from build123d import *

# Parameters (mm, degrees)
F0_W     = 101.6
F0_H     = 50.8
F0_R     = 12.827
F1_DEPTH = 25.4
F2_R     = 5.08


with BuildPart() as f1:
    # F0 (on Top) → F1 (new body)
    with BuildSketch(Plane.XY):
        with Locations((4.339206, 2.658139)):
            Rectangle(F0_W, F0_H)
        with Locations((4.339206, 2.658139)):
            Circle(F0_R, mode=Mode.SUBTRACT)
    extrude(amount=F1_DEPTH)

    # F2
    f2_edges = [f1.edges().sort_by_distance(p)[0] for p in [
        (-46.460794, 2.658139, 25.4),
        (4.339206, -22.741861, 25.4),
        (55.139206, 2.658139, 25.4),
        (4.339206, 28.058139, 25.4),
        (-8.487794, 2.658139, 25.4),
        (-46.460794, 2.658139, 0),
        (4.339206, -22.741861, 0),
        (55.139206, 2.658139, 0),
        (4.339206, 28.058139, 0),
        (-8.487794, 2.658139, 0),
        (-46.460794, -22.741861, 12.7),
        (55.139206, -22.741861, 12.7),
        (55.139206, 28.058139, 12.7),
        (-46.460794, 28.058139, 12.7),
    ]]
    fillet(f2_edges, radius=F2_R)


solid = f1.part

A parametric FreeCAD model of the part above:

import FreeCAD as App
import Part
import Sketcher
from FreeCAD import Vector
Q = App.Units.Quantity

doc = App.newDocument("Part")
body = doc.addObject("PartDesign::Body", "Body")

# Sketch on XY plane
sketch1 = doc.addObject("Sketcher::SketchObject", "Sketch")
body.addObject(sketch1)
sketch1.AttachmentSupport = (doc.XY_Plane, [""])
sketch1.MapMode = "FlatFace"
sketch1.addGeometry(Part.LineSegment(Vector(-46, 28, 0), Vector(-46, -23, 0)), False)
sketch1.addGeometry(Part.LineSegment(Vector(-46, -23, 0), Vector(55, -23, 0)), False)
sketch1.addGeometry(Part.LineSegment(Vector(55, -23, 0), Vector(55, 28, 0)), False)
sketch1.addGeometry(Part.LineSegment(Vector(55, 28, 0), Vector(-46, 28, 0)), False)
sketch1.addGeometry(Part.Circle(Vector(4, 3, 0), Vector(0, 0, 1), 13), False)
sketch1.addConstraint(Sketcher.Constraint("Coincident", 0, 2, 1, 1))
sketch1.addConstraint(Sketcher.Constraint("Coincident", 1, 2, 2, 1))
sketch1.addConstraint(Sketcher.Constraint("Coincident", 2, 2, 3, 1))
sketch1.addConstraint(Sketcher.Constraint("Coincident", 3, 2, 0, 1))
sketch1.addConstraint(Sketcher.Constraint("Vertical", 0))
sketch1.addConstraint(Sketcher.Constraint("Horizontal", 1))
sketch1.addConstraint(Sketcher.Constraint("Vertical", 2))
sketch1.addConstraint(Sketcher.Constraint("Horizontal", 3))
sketch1.addConstraint(Sketcher.Constraint("Diameter", 4, Q("1.01 in")))
sketch1.addConstraint(Sketcher.Constraint("DistanceX", 1, 1, 1, 2, Q("4 in")))
sketch1.addConstraint(Sketcher.Constraint("DistanceY", 0, 2, 0, 1, Q("2 in")))
sketch1.addConstraint(Sketcher.Constraint("DistanceX", 0, 2, 4, 3, Q("2 in")))
sketch1.addConstraint(Sketcher.Constraint("DistanceY", 0, 2, 4, 3, Q("1 in")))
sketch1.addConstraint(Sketcher.Constraint("DistanceY", -1, 1, 4, 3, 2.658139))
sketch1.addConstraint(Sketcher.Constraint("DistanceX", -1, 1, 4, 3, 4.339206))
pad1 = doc.addObject("PartDesign::Pad", "Pad")
body.addObject(pad1)
pad1.Profile = sketch1
pad1.Length = Q("1 in")
doc.recompute()

fillet = doc.addObject("PartDesign::Fillet", "Fillet")
body.addObject(fillet)
fillet.Base = (pad1, ["Edge1"])
fillet.UseAllEdges = True
fillet.Radius = Q("0.2 in")

doc.recompute()
